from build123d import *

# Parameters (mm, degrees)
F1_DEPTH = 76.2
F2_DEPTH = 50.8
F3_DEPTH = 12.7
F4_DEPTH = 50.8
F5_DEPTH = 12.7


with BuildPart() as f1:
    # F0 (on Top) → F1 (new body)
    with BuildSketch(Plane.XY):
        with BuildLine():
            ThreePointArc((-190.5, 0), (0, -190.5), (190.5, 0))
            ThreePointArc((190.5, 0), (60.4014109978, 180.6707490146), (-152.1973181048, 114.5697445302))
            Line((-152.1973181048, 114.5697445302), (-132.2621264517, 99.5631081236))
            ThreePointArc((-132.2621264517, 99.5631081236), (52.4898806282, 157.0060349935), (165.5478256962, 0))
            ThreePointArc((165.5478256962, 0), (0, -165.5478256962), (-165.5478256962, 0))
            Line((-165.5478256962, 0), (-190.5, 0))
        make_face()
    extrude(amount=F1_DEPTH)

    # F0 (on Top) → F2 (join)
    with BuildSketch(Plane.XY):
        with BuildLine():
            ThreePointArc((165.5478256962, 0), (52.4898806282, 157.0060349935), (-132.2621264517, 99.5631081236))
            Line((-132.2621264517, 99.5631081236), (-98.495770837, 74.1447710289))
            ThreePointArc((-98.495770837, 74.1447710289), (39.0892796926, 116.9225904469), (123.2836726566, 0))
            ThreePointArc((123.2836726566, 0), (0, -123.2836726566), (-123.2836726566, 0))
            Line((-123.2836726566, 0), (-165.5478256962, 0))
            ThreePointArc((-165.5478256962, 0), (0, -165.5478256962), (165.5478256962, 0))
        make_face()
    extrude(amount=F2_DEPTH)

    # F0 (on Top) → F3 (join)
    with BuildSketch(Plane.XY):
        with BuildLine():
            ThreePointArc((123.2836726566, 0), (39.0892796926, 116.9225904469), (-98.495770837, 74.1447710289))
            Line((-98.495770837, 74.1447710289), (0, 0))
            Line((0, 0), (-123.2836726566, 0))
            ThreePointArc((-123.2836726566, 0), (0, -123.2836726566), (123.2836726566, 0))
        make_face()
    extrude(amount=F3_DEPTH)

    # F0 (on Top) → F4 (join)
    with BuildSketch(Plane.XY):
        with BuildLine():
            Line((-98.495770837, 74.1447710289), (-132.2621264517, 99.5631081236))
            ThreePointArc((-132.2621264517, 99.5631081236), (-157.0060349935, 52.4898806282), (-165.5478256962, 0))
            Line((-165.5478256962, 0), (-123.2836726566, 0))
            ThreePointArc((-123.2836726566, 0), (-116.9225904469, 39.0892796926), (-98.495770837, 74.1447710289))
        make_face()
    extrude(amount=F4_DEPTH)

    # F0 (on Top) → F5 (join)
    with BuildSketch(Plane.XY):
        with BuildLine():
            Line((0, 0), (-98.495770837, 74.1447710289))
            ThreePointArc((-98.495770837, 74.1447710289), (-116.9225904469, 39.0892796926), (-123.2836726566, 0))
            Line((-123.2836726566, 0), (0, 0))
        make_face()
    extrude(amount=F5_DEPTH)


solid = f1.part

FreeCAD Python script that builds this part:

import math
import FreeCAD as App
import Part
import Sketcher
from FreeCAD import Vector
Q = App.Units.Quantity

doc = App.newDocument("Part")
body = doc.addObject("PartDesign::Body", "Body")

sketch1 = doc.addObject("Sketcher::SketchObject", "Sketch")
body.addObject(sketch1)
sketch1.AttachmentSupport = (doc.XY_Plane, [""])
sketch1.MapMode = "FlatFace"
sketch1.addGeometry([
    Part.ArcOfCircle(Part.Circle(Vector(0, 0, 0), Vector(0, 0, 1), 190), math.radians(180), math.radians(503)),
    Part.LineSegment(Vector(-152, 115, 0), Vector(-132, 100, 0)),
    Part.ArcOfCircle(Part.Circle(Vector(0, 0, 0), Vector(0, 0, 1), 166), math.radians(180), math.radians(503)),
    Part.LineSegment(Vector(-166, 0, 0), Vector(-190, 0, 0)),
], False)
sketch1.addConstraint([
    Sketcher.Constraint("Coincident", 0, 2, 1, 1),
    Sketcher.Constraint("Coincident", 1, 2, 2, 2),
    Sketcher.Constraint("Coincident", 2, 1, 3, 1),
    Sketcher.Constraint("Coincident", 3, 2, 0, 1),
    Sketcher.Constraint("Horizontal", 3),
    Sketcher.Constraint("Coincident", 0, 3, -1, 1),
    Sketcher.Constraint("Coincident", 2, 3, -1, 1),
    Sketcher.Constraint("PointOnObject", 2, 1, -1),
    Sketcher.Constraint("Radius", 0, Q("7.5 in")),
    Sketcher.Constraint("Radius", 2, 165.547826),
    Sketcher.Constraint("DistanceX", 2, 1, 1, 2, 33.285699),
    Sketcher.Constraint("DistanceX", 0, 2, -1, 1, 152.197318),
])
pad1 = doc.addObject("PartDesign::Pad", "Pad")
body.addObject(pad1)
pad1.Profile = sketch1
pad1.Length = Q("3 in")

sketch2 = doc.addObject("Sketcher::SketchObject", "Sketch001")
body.addObject(sketch2)
sketch2.AttachmentSupport = (doc.XY_Plane, [""])
sketch2.MapMode = "FlatFace"
sketch2.addGeometry([
    Part.LineSegment(Vector(-132, 100, 0), Vector(-98, 74, 0)),
    Part.ArcOfCircle(Part.Circle(Vector(0, 0, 0), Vector(0, 0, 1), 123), math.radians(180), math.radians(503)),
    Part.LineSegment(Vector(-123, 0, 0), Vector(-166, 0, 0)),
    Part.ArcOfCircle(Part.Circle(Vector(0, 0, 0), Vector(0, 0, 1), 166), math.radians(180), math.radians(503)),
], False)
sketch2.addConstraint([
    Sketcher.Constraint("Coincident", 0, 2, 1, 2),
    Sketcher.Constraint("Coincident", 1, 1, 2, 1),
    Sketcher.Constraint("Coincident", 2, 2, 3, 1),
    Sketcher.Constraint("Coincident", 3, 2, 0, 1),
    Sketcher.Constraint("Horizontal", 2),
    Sketcher.Constraint("Coincident", 1, 3, -1, 1),
    Sketcher.Constraint("Coincident", 3, 3, -1, 1),
    Sketcher.Constraint("PointOnObject", 1, 1, -1),
    Sketcher.Constraint("Radius", 1, 123.283673),
    Sketcher.Constraint("Radius", 3, 165.547826),
    Sketcher.Constraint("DistanceX", 1, 1, 0, 2, 24.787902),
    Sketcher.Constraint("DistanceX", 2, 2, 3, 2, 33.285699),
])
pad2 = doc.addObject("PartDesign::Pad", "Pad001")
body.addObject(pad2)
pad2.Profile = sketch2
pad2.Length = Q("2 in")

sketch3 = doc.addObject("Sketcher::SketchObject", "Sketch002")
body.addObject(sketch3)
sketch3.AttachmentSupport = (doc.XY_Plane, [""])
sketch3.MapMode = "FlatFace"
sketch3.addGeometry([
    Part.LineSegment(Vector(-98, 74, 0), Vector(0, 0, 0)),
    Part.LineSegment(Vector(0, 0, 0), Vector(-123, 0, 0)),
    Part.ArcOfCircle(Part.Circle(Vector(0, 0, 0), Vector(0, 0, 1), 123), math.radians(180), math.radians(503)),
], False)
sketch3.addConstraint([
    Sketcher.Constraint("Coincident", 0, 2, 1, 1),
    Sketcher.Constraint("Coincident", 1, 2, 2, 1),
    Sketcher.Constraint("Coincident", 2, 2, 0, 1),
    Sketcher.Constraint("Horizontal", 1),
    Sketcher.Constraint("Coincident", 2, 3, -1, 1),
    Sketcher.Constraint("Coincident", 0, 2, -1, 1),
    Sketcher.Constraint("Radius", 2, 123.283673),
    Sketcher.Constraint("DistanceX", 1, 2, 2, 2, 24.787902),
])
pad3 = doc.addObject("PartDesign::Pad", "Pad002")
body.addObject(pad3)
pad3.Profile = sketch3
pad3.Length = Q("0.5 in")

sketch4 = doc.addObject("Sketcher::SketchObject", "Sketch003")
body.addObject(sketch4)
sketch4.AttachmentSupport = (doc.XY_Plane, [""])
sketch4.MapMode = "FlatFace"
sketch4.addGeometry([
    Part.LineSegment(Vector(-98, 74, 0), Vector(-132, 100, 0)),
    Part.ArcOfCircle(Part.Circle(Vector(0, 0, 0), Vector(0, 0, 1), 166), math.radians(143), math.radians(180)),
    Part.LineSegment(Vector(-166, 0, 0), Vector(-123, 0, 0)),
    Part.ArcOfCircle(Part.Circle(Vector(0, 0, 0), Vector(0, 0, 1), 123), math.radians(143), math.radians(180)),
], False)
sketch4.addConstraint([
    Sketcher.Constraint("Coincident", 0, 2, 1, 1),
    Sketcher.Constraint("Coincident", 1, 2, 2, 1),
    Sketcher.Constraint("Coincident", 2, 2, 3, 2),
    Sketcher.Constraint("Coincident", 3, 1, 0, 1),
    Sketcher.Constraint("Horizontal", 2),
    Sketcher.Constraint("Coincident", 1, 3, -1, 1),
    Sketcher.Constraint("Coincident", 3, 3, -1, 1),
    Sketcher.Constraint("PointOnObject", 1, 2, -1),
    Sketcher.Constraint("Radius", 1, 165.547826),
    Sketcher.Constraint("Radius", 3, 123.283673),
    Sketcher.Constraint("DistanceX", 1, 2, 0, 2, 33.285699),
    Sketcher.Constraint("DistanceX", 2, 2, 3, 1, 24.787902),
])
pad4 = doc.addObject("PartDesign::Pad", "Pad003")
body.addObject(pad4)
pad4.Profile = sketch4
pad4.Length = Q("2 in")

sketch5 = doc.addObject("Sketcher::SketchObject", "Sketch004")
body.addObject(sketch5)
sketch5.AttachmentSupport = (doc.XY_Plane, [""])
sketch5.MapMode = "FlatFace"
sketch5.addGeometry([
    Part.LineSegment(Vector(0, 0, 0), Vector(-98, 74, 0)),
    Part.ArcOfCircle(Part.Circle(Vector(0, 0, 0), Vector(0, 0, 1), 123), math.radians(143), math.radians(180)),
    Part.LineSegment(Vector(-123, 0, 0), Vector(0, 0, 0)),
], False)
sketch5.addConstraint([
    Sketcher.Constraint("Coincident", 0, 2, 1, 1),
    Sketcher.Constraint("Coincident", 1, 2, 2, 1),
    Sketcher.Constraint("Coincident", 2, 2, 0, 1),
    Sketcher.Constraint("Horizontal", 2),
    Sketcher.Constraint("Coincident", 1, 3, -1, 1),
    Sketcher.Constraint("Coincident", 2, 2, -1, 1),
    Sketcher.Constraint("Radius", 1, 123.283673),
    Sketcher.Constraint("DistanceX", 1, 2, 0, 2, 24.787902),
])
pad5 = doc.addObject("PartDesign::Pad", "Pad004")
body.addObject(pad5)
pad5.Profile = sketch5
pad5.Length = Q("0.5 in")

doc.recompute()
